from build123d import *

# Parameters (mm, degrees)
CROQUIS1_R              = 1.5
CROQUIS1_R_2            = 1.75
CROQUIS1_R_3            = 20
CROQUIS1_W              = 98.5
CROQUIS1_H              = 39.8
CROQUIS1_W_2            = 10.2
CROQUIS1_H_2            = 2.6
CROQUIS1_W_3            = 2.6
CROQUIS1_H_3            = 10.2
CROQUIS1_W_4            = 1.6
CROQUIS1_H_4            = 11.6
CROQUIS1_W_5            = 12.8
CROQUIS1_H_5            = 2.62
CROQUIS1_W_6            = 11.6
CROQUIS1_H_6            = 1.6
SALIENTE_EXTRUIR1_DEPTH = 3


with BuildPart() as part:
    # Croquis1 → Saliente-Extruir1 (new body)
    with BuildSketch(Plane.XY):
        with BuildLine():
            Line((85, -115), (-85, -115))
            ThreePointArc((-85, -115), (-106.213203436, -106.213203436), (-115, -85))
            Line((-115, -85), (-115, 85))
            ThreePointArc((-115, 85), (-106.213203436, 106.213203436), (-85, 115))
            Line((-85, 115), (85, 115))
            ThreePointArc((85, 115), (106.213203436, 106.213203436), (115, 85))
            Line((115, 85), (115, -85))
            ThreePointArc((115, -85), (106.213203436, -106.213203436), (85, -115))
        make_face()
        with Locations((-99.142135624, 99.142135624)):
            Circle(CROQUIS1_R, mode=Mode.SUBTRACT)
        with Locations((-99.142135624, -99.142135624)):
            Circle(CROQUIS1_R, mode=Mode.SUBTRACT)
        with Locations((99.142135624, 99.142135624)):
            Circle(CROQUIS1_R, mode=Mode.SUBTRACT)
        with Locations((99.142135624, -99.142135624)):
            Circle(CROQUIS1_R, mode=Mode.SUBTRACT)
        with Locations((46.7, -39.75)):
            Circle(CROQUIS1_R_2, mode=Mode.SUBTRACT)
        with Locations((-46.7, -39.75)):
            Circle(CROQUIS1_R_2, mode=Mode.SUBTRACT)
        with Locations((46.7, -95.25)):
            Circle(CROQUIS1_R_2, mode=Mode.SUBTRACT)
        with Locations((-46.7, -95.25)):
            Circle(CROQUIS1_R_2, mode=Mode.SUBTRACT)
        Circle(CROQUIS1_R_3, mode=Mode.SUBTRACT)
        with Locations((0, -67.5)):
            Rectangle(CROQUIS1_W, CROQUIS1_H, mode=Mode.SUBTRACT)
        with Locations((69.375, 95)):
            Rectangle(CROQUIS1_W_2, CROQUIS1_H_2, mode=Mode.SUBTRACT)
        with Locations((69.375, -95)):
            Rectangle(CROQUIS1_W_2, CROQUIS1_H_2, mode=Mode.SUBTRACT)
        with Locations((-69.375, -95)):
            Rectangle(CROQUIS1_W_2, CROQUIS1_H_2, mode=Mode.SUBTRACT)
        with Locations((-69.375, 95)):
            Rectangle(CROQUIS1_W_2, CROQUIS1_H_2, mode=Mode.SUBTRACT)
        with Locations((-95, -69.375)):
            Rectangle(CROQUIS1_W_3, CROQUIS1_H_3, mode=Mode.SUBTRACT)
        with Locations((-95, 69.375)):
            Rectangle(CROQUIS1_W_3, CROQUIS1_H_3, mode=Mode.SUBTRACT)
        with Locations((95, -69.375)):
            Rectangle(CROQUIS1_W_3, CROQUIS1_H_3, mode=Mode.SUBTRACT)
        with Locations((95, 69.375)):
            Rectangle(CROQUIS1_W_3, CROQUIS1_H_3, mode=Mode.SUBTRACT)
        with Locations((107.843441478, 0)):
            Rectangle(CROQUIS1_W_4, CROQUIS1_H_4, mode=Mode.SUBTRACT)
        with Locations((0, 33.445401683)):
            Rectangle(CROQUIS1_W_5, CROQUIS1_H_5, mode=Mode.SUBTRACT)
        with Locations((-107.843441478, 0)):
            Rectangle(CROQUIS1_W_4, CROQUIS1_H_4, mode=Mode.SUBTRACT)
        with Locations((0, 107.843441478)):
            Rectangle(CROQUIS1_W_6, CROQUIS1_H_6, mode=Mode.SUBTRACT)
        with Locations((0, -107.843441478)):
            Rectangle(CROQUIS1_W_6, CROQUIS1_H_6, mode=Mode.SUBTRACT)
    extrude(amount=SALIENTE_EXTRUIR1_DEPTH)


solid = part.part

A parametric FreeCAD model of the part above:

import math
import FreeCAD as App
import Part
import Sketcher
from FreeCAD import Vector
Q = App.Units.Quantity


def add_polygon(sketch, points):
    """Adds a closed chain of lines whose ends are joined by coincident constraints."""
    first, n = sketch.GeometryCount, len(points)
    for a, b in zip(points, points[1:] + points[:1]):
        sketch.addGeometry(Part.LineSegment(App.Vector(*a, 0), App.Vector(*b, 0)), False)
    for i in range(n):
        sketch.addConstraint(Sketcher.Constraint("Coincident", first + i, 2, first + (i + 1) % n, 1))

doc = App.newDocument("Part")
body = doc.addObject("PartDesign::Body", "Body")

# Sketch on XY plane
sketch1 = doc.addObject("Sketcher::SketchObject", "Sketch")
body.addObject(sketch1)
sketch1.AttachmentSupport = (doc.XY_Plane, [""])
sketch1.MapMode = "FlatFace"
sketch1.addGeometry(Part.LineSegment(Vector(-85, -115, 0), Vector(85, -115, 0)), False)  # 0
sketch1.addGeometry(Part.ArcOfCircle(Part.Circle(Vector(85, -85, 0), Vector(0, 0, 1), 30), math.radians(-90), math.radians(0)), False)  # 1
sketch1.addGeometry(Part.LineSegment(Vector(115, -85, 0), Vector(115, 85, 0)), False)  # 2
sketch1.addGeometry(Part.ArcOfCircle(Part.Circle(Vector(85, 85, 0), Vector(0, 0, 1), 30), math.radians(0), math.radians(90)), False)  # 3
sketch1.addGeometry(Part.LineSegment(Vector(85, 115, 0), Vector(-85, 115, 0)), False)  # 4
sketch1.addGeometry(Part.ArcOfCircle(Part.Circle(Vector(-85, 85, 0), Vector(0, 0, 1), 30), math.radians(90), math.radians(180)), False)  # 5
sketch1.addGeometry(Part.LineSegment(Vector(-115, 85, 0), Vector(-115, -85, 0)), False)  # 6
sketch1.addGeometry(Part.ArcOfCircle(Part.Circle(Vector(-85, -85, 0), Vector(0, 0, 1), 30), math.radians(180), math.radians(270)), False)  # 7
sketch1.addGeometry(Part.Circle(Vector(99.1, -99.1, 0), Vector(0, 0, 1), 1.5), False)  # 8
add_polygon(sketch1, [(64.3, -96.3), (64.3, -93.7), (74.5, -93.7), (74.5, -96.3)])  # lines 9-12
add_polygon(sketch1, [(93.7, -74.5), (93.7, -64.3), (96.3, -64.3), (96.3, -74.5)])  # lines 13-16
sketch1.addGeometry(Part.Circle(Vector(46.7, -95.2, 0), Vector(0, 0, 1), 1.8), False)  # 17
add_polygon(sketch1, [(-5.8, -108.6), (-5.8, -107), (5.8, -107), (5.8, -108.6)])  # lines 18-21
add_polygon(sketch1, [(-49.2, -87.4), (-49.2, -47.6), (49.2, -47.6), (49.2, -87.4)])  # lines 22-25
add_polygon(sketch1, [(107, -5.8), (107, 5.8), (108.6, 5.8), (108.6, -5.8)])  # lines 26-29
sketch1.addGeometry(Part.Circle(Vector(46.7, -39.8, 0), Vector(0, 0, 1), 1.8), False)  # 30
sketch1.addGeometry(Part.Circle(Vector(0, 0, 0), Vector(0, 0, 1), 20), False)  # 31
sketch1.addGeometry(Part.Circle(Vector(-46.7, -95.2, 0), Vector(0, 0, 1), 1.8), False)  # 32
add_polygon(sketch1, [(-74.5, -96.3), (-74.5, -93.7), (-64.3, -93.7), (-64.3, -96.3)])  # lines 33-36
sketch1.addGeometry(Part.Circle(Vector(-99.1, -99.1, 0), Vector(0, 0, 1), 1.5), False)  # 37
add_polygon(sketch1, [(-96.3, -74.5), (-96.3, -64.3), (-93.7, -64.3), (-93.7, -74.5)])  # lines 38-41
sketch1.addGeometry(Part.Circle(Vector(-46.7, -39.8, 0), Vector(0, 0, 1), 1.8), False)  # 42
add_polygon(sketch1, [(-108.6, -5.8), (-108.6, 5.8), (-107, 5.8), (-107, -5.8)])  # lines 43-46
add_polygon(sketch1, [(-6.4, 32.1), (-6.4, 34.8), (6.4, 34.8), (6.4, 32.1)])  # lines 47-50
add_polygon(sketch1, [(93.7, 64.3), (93.7, 74.5), (96.3, 74.5), (96.3, 64.3)])  # lines 51-54
sketch1.addGeometry(Part.Circle(Vector(99.1, 99.1, 0), Vector(0, 0, 1), 1.5), False)  # 55
add_polygon(sketch1, [(64.3, 93.7), (64.3, 96.3), (74.5, 96.3), (74.5, 93.7)])  # lines 56-59
add_polygon(sketch1, [(-5.8, 107), (-5.8, 108.6), (5.8, 108.6), (5.8, 107)])  # lines 60-63
add_polygon(sketch1, [(-96.3, 64.3), (-96.3, 74.5), (-93.7, 74.5), (-93.7, 64.3)])  # lines 64-67
add_polygon(sketch1, [(-74.5, 93.7), (-74.5, 96.3), (-64.3, 96.3), (-64.3, 93.7)])  # lines 68-71
sketch1.addGeometry(Part.Circle(Vector(-99.1, 99.1, 0), Vector(0, 0, 1), 1.5), False)  # 72
sketch1.addConstraint(Sketcher.Constraint("Tangent", 0, 2, 1, 1))
sketch1.addConstraint(Sketcher.Constraint("Tangent", 1, 2, 2, 1))
sketch1.addConstraint(Sketcher.Constraint("Tangent", 2, 2, 3, 1))
sketch1.addConstraint(Sketcher.Constraint("Tangent", 3, 2, 4, 1))
sketch1.addConstraint(Sketcher.Constraint("Tangent", 4, 2, 5, 1))
sketch1.addConstraint(Sketcher.Constraint("Tangent", 5, 2, 6, 1))
sketch1.addConstraint(Sketcher.Constraint("Tangent", 6, 2, 7, 1))
sketch1.addConstraint(Sketcher.Constraint("Tangent", 7, 2, 0, 1))
sketch1.addConstraint(Sketcher.Constraint("Horizontal", 0))
sketch1.addConstraint(Sketcher.Constraint("Vertical", 2))
sketch1.addConstraint(Sketcher.Constraint("Horizontal", 4))
sketch1.addConstraint(Sketcher.Constraint("Vertical", 6))
sketch1.addConstraint(Sketcher.Constraint("Vertical", 9))
sketch1.addConstraint(Sketcher.Constraint("Horizontal", 10))
sketch1.addConstraint(Sketcher.Constraint("Vertical", 11))
sketch1.addConstraint(Sketcher.Constraint("Horizontal", 12))
sketch1.addConstraint(Sketcher.Constraint("Vertical", 13))
sketch1.addConstraint(Sketcher.Constraint("Horizontal", 14))
sketch1.addConstraint(Sketcher.Constraint("Vertical", 15))
sketch1.addConstraint(Sketcher.Constraint("Horizontal", 16))
sketch1.addConstraint(Sketcher.Constraint("Vertical", 18))
sketch1.addConstraint(Sketcher.Constraint("Horizontal", 19))
sketch1.addConstraint(Sketcher.Constraint("Vertical", 20))
sketch1.addConstraint(Sketcher.Constraint("Horizontal", 21))
sketch1.addConstraint(Sketcher.Constraint("Vertical", 22))
sketch1.addConstraint(Sketcher.Constraint("Horizontal", 23))
sketch1.addConstraint(Sketcher.Constraint("Vertical", 24))
sketch1.addConstraint(Sketcher.Constraint("Horizontal", 25))
sketch1.addConstraint(Sketcher.Constraint("Vertical", 26))
sketch1.addConstraint(Sketcher.Constraint("Horizontal", 27))
sketch1.addConstraint(Sketcher.Constraint("Vertical", 28))
sketch1.addConstraint(Sketcher.Constraint("Horizontal", 29))
sketch1.addConstraint(Sketcher.Constraint("Vertical", 33))
sketch1.addConstraint(Sketcher.Constraint("Horizontal", 34))
sketch1.addConstraint(Sketcher.Constraint("Vertical", 35))
sketch1.addConstraint(Sketcher.Constraint("Horizontal", 36))
sketch1.addConstraint(Sketcher.Constraint("Vertical", 38))
sketch1.addConstraint(Sketcher.Constraint("Horizontal", 39))
sketch1.addConstraint(Sketcher.Constraint("Vertical", 40))
sketch1.addConstraint(Sketcher.Constraint("Horizontal", 41))
sketch1.addConstraint(Sketcher.Constraint("Vertical", 43))
sketch1.addConstraint(Sketcher.Constraint("Horizontal", 44))
sketch1.addConstraint(Sketcher.Constraint("Vertical", 45))
sketch1.addConstraint(Sketcher.Constraint("Horizontal", 46))
sketch1.addConstraint(Sketcher.Constraint("Vertical", 47))
sketch1.addConstraint(Sketcher.Constraint("Horizontal", 48))
sketch1.addConstraint(Sketcher.Constraint("Vertical", 49))
sketch1.addConstraint(Sketcher.Constraint("Horizontal", 50))
sketch1.addConstraint(Sketcher.Constraint("Vertical", 51))
sketch1.addConstraint(Sketcher.Constraint("Horizontal", 52))
sketch1.addConstraint(Sketcher.Constraint("Vertical", 53))
sketch1.addConstraint(Sketcher.Constraint("Horizontal", 54))
sketch1.addConstraint(Sketcher.Constraint("Vertical", 56))
sketch1.addConstraint(Sketcher.Constraint("Horizontal", 57))
sketch1.addConstraint(Sketcher.Constraint("Vertical", 58))
sketch1.addConstraint(Sketcher.Constraint("Horizontal", 59))
sketch1.addConstraint(Sketcher.Constraint("Vertical", 60))
sketch1.addConstraint(Sketcher.Constraint("Horizontal", 61))
sketch1.addConstraint(Sketcher.Constraint("Vertical", 62))
sketch1.addConstraint(Sketcher.Constraint("Horizontal", 63))
sketch1.addConstraint(Sketcher.Constraint("Vertical", 64))
sketch1.addConstraint(Sketcher.Constraint("Horizontal", 65))
sketch1.addConstraint(Sketcher.Constraint("Vertical", 66))
sketch1.addConstraint(Sketcher.Constraint("Horizontal", 67))
sketch1.addConstraint(Sketcher.Constraint("Vertical", 68))
sketch1.addConstraint(Sketcher.Constraint("Horizontal", 69))
sketch1.addConstraint(Sketcher.Constraint("Vertical", 70))
sketch1.addConstraint(Sketcher.Constraint("Horizontal", 71))
sketch1.addConstraint(Sketcher.Constraint("Coincident", 31, 3, -1, 1))
sketch1.addConstraint(Sketcher.Constraint("Equal", 1, 3))
sketch1.addConstraint(Sketcher.Constraint("Equal", 3, 5))
sketch1.addConstraint(Sketcher.Constraint("Equal", 5, 7))
sketch1.addConstraint(Sketcher.Constraint("Equal", 17, 30))
sketch1.addConstraint(Sketcher.Constraint("Equal", 30, 32))
sketch1.addConstraint(Sketcher.Constraint("Equal", 8, 37))
sketch1.addConstraint(Sketcher.Constraint("Equal", 32, 42))
sketch1.addConstraint(Sketcher.Constraint("Equal", 37, 55))
sketch1.addConstraint(Sketcher.Constraint("Equal", 55, 72))
sketch1.addConstraint(Sketcher.Constraint("Symmetric", 1, 3, 5, 3, -1, 1))
sketch1.addConstraint(Sketcher.Constraint("Symmetric", 37, 3, 55, 3, -1, 1))
sketch1.addConstraint(Sketcher.Constraint("Symmetric", 8, 3, 72, 3, -1, 1))
sketch1.addConstraint(Sketcher.Constraint("Symmetric", 28, 2, 43, 2, -1, 1))
sketch1.addConstraint(Sketcher.Constraint("Symmetric", 26, 2, 45, 2, -1, 1))
sketch1.addConstraint(Sketcher.Constraint("Symmetric", 40, 2, 51, 2, -1, 1))
sketch1.addConstraint(Sketcher.Constraint("Symmetric", 38, 2, 53, 2, -1, 1))
sketch1.addConstraint(Sketcher.Constraint("Symmetric", 35, 2, 56, 2, -1, 1))
sketch1.addConstraint(Sketcher.Constraint("Symmetric", 33, 2, 58, 2, -1, 1))
sketch1.addConstraint(Sketcher.Constraint("Symmetric", 20, 2, 60, 2, -1, 1))
sketch1.addConstraint(Sketcher.Constraint("Symmetric", 18, 2, 62, 2, -1, 1))
sketch1.addConstraint(Sketcher.Constraint("Symmetric", 15, 2, 64, 2, -1, 1))
sketch1.addConstraint(Sketcher.Constraint("Symmetric", 13, 2, 66, 2, -1, 1))
sketch1.addConstraint(Sketcher.Constraint("Symmetric", 11, 2, 68, 2, -1, 1))
sketch1.addConstraint(Sketcher.Constraint("Symmetric", 9, 2, 70, 2, -1, 1))
sketch1.addConstraint(Sketcher.Constraint("Symmetric", 17, 3, 32, 3, -2))
sketch1.addConstraint(Sketcher.Constraint("Symmetric", 8, 3, 37, 3, -2))
sketch1.addConstraint(Sketcher.Constraint("Symmetric", 30, 3, 42, 3, -2))
sketch1.addConstraint(Sketcher.Constraint("Symmetric", 10, 2, 33, 2, -2))
sketch1.addConstraint(Sketcher.Constraint("Symmetric", 12, 2, 35, 2, -2))
sketch1.addConstraint(Sketcher.Constraint("Symmetric", 14, 2, 38, 2, -2))
sketch1.addConstraint(Sketcher.Constraint("Symmetric", 16, 2, 40, 2, -2))
sketch1.addConstraint(Sketcher.Constraint("Horizontal", 27, 2, 43, 2))
sketch1.addConstraint(Sketcher.Constraint("Vertical", 17, 3, 30, 3))
sketch1.addConstraint(Sketcher.Constraint("Vertical", 21, 2, 60, 2))
sketch1.addConstraint(Sketcher.Constraint("Equal", 4, 2))
sketch1.addConstraint(Sketcher.Constraint("Equal", 67, 9))
sketch1.addConstraint(Sketcher.Constraint("Equal", 71, 13))
sketch1.addConstraint(Sketcher.Constraint("Equal", 46, 18))
sketch1.addConstraint(Sketcher.Constraint("Equal", 63, 26))
sketch1.addConstraint(Sketcher.Constraint("Diameter", 8, Q("3 mm")))
sketch1.addConstraint(Sketcher.Constraint("Diameter", 31, Q("40 mm")))
sketch1.addConstraint(Sketcher.Constraint("Radius", 1, Q("30 mm")))
sketch1.addConstraint(Sketcher.Constraint("Diameter", 17, Q("3.5 mm")))
sketch1.addConstraint(Sketcher.Constraint("DistanceX", 0, 1, 0, 2, Q("170 mm")))
sketch1.addConstraint(Sketcher.Constraint("DistanceX", 10, 1, 10, 2, Q("10.2 mm")))
sketch1.addConstraint(Sketcher.Constraint("DistanceX", 14, 1, 14, 2, Q("2.6 mm")))
sketch1.addConstraint(Sketcher.Constraint("DistanceX", 19, 1, 19, 2, Q("11.6 mm")))
sketch1.addConstraint(Sketcher.Constraint("DistanceX", 23, 1, 23, 2, Q("98.5 mm")))
sketch1.addConstraint(Sketcher.Constraint("DistanceX", 27, 1, 27, 2, Q("1.6 mm")))
sketch1.addConstraint(Sketcher.Constraint("DistanceX", 48, 1, 48, 2, Q("12.8 mm")))
sketch1.addConstraint(Sketcher.Constraint("DistanceY", 22, 1, 22, 2, Q("39.8 mm")))
sketch1.addConstraint(Sketcher.Constraint("DistanceY", 47, 1, 47, 2, Q("2.62 mm")))
sketch1.addConstraint(Sketcher.Constraint("DistanceX", -1, 1, 17, 3, Q("46.7 mm")))
sketch1.addConstraint(Sketcher.Constraint("DistanceY", 9, 2, -1, 1, Q("93.7 mm")))
sketch1.addConstraint(Sketcher.Constraint("DistanceX", -1, 1, 13, 2, Q("93.7 mm")))
sketch1.addConstraint(Sketcher.Constraint("DistanceY", 22, 2, -1, 1, Q("47.6 mm")))
sketch1.addConstraint(Sketcher.Constraint("DistanceX", 47, 2, -1, 1, Q("6.4 mm")))
sketch1.addConstraint(Sketcher.Constraint("DistanceY", 17, 3, -1, 1, Q("95.25 mm")))
sketch1.addConstraint(Sketcher.Constraint("DistanceY", 30, 3, -1, 1, Q("39.75 mm")))
sketch1.addConstraint(Sketcher.Constraint("DistanceX", 22, 2, -1, 1, Q("49.25 mm")))
sketch1.addConstraint(Sketcher.Constraint("DistanceX", -1, 1, 9, 2, Q("64.275 mm")))
sketch1.addConstraint(Sketcher.Constraint("DistanceY", 13, 2, -1, 1, Q("64.275 mm")))
sketch1.addConstraint(Sketcher.Constraint("DistanceY", -1, 1, 47, 2, Q("34.755402 mm")))
sketch1.addConstraint(Sketcher.Constraint("DistanceY", 18, 2, -1, 1, Q("107.043441 mm")))
sketch1.addConstraint(Sketcher.Constraint("DistanceX", -1, 1, 26, 2, Q("107.043441 mm")))
sketch1.addConstraint(Sketcher.Constraint("DistanceX", -1, 1, 8, 3, Q("99.142136 mm")))
sketch1.addConstraint(Sketcher.Constraint("DistanceY", 8, 3, -1, 1, Q("99.142136 mm")))
pad1 = doc.addObject("PartDesign::Pad", "Pad")
body.addObject(pad1)
pad1.Profile = sketch1
pad1.Length = 3

doc.recompute()
